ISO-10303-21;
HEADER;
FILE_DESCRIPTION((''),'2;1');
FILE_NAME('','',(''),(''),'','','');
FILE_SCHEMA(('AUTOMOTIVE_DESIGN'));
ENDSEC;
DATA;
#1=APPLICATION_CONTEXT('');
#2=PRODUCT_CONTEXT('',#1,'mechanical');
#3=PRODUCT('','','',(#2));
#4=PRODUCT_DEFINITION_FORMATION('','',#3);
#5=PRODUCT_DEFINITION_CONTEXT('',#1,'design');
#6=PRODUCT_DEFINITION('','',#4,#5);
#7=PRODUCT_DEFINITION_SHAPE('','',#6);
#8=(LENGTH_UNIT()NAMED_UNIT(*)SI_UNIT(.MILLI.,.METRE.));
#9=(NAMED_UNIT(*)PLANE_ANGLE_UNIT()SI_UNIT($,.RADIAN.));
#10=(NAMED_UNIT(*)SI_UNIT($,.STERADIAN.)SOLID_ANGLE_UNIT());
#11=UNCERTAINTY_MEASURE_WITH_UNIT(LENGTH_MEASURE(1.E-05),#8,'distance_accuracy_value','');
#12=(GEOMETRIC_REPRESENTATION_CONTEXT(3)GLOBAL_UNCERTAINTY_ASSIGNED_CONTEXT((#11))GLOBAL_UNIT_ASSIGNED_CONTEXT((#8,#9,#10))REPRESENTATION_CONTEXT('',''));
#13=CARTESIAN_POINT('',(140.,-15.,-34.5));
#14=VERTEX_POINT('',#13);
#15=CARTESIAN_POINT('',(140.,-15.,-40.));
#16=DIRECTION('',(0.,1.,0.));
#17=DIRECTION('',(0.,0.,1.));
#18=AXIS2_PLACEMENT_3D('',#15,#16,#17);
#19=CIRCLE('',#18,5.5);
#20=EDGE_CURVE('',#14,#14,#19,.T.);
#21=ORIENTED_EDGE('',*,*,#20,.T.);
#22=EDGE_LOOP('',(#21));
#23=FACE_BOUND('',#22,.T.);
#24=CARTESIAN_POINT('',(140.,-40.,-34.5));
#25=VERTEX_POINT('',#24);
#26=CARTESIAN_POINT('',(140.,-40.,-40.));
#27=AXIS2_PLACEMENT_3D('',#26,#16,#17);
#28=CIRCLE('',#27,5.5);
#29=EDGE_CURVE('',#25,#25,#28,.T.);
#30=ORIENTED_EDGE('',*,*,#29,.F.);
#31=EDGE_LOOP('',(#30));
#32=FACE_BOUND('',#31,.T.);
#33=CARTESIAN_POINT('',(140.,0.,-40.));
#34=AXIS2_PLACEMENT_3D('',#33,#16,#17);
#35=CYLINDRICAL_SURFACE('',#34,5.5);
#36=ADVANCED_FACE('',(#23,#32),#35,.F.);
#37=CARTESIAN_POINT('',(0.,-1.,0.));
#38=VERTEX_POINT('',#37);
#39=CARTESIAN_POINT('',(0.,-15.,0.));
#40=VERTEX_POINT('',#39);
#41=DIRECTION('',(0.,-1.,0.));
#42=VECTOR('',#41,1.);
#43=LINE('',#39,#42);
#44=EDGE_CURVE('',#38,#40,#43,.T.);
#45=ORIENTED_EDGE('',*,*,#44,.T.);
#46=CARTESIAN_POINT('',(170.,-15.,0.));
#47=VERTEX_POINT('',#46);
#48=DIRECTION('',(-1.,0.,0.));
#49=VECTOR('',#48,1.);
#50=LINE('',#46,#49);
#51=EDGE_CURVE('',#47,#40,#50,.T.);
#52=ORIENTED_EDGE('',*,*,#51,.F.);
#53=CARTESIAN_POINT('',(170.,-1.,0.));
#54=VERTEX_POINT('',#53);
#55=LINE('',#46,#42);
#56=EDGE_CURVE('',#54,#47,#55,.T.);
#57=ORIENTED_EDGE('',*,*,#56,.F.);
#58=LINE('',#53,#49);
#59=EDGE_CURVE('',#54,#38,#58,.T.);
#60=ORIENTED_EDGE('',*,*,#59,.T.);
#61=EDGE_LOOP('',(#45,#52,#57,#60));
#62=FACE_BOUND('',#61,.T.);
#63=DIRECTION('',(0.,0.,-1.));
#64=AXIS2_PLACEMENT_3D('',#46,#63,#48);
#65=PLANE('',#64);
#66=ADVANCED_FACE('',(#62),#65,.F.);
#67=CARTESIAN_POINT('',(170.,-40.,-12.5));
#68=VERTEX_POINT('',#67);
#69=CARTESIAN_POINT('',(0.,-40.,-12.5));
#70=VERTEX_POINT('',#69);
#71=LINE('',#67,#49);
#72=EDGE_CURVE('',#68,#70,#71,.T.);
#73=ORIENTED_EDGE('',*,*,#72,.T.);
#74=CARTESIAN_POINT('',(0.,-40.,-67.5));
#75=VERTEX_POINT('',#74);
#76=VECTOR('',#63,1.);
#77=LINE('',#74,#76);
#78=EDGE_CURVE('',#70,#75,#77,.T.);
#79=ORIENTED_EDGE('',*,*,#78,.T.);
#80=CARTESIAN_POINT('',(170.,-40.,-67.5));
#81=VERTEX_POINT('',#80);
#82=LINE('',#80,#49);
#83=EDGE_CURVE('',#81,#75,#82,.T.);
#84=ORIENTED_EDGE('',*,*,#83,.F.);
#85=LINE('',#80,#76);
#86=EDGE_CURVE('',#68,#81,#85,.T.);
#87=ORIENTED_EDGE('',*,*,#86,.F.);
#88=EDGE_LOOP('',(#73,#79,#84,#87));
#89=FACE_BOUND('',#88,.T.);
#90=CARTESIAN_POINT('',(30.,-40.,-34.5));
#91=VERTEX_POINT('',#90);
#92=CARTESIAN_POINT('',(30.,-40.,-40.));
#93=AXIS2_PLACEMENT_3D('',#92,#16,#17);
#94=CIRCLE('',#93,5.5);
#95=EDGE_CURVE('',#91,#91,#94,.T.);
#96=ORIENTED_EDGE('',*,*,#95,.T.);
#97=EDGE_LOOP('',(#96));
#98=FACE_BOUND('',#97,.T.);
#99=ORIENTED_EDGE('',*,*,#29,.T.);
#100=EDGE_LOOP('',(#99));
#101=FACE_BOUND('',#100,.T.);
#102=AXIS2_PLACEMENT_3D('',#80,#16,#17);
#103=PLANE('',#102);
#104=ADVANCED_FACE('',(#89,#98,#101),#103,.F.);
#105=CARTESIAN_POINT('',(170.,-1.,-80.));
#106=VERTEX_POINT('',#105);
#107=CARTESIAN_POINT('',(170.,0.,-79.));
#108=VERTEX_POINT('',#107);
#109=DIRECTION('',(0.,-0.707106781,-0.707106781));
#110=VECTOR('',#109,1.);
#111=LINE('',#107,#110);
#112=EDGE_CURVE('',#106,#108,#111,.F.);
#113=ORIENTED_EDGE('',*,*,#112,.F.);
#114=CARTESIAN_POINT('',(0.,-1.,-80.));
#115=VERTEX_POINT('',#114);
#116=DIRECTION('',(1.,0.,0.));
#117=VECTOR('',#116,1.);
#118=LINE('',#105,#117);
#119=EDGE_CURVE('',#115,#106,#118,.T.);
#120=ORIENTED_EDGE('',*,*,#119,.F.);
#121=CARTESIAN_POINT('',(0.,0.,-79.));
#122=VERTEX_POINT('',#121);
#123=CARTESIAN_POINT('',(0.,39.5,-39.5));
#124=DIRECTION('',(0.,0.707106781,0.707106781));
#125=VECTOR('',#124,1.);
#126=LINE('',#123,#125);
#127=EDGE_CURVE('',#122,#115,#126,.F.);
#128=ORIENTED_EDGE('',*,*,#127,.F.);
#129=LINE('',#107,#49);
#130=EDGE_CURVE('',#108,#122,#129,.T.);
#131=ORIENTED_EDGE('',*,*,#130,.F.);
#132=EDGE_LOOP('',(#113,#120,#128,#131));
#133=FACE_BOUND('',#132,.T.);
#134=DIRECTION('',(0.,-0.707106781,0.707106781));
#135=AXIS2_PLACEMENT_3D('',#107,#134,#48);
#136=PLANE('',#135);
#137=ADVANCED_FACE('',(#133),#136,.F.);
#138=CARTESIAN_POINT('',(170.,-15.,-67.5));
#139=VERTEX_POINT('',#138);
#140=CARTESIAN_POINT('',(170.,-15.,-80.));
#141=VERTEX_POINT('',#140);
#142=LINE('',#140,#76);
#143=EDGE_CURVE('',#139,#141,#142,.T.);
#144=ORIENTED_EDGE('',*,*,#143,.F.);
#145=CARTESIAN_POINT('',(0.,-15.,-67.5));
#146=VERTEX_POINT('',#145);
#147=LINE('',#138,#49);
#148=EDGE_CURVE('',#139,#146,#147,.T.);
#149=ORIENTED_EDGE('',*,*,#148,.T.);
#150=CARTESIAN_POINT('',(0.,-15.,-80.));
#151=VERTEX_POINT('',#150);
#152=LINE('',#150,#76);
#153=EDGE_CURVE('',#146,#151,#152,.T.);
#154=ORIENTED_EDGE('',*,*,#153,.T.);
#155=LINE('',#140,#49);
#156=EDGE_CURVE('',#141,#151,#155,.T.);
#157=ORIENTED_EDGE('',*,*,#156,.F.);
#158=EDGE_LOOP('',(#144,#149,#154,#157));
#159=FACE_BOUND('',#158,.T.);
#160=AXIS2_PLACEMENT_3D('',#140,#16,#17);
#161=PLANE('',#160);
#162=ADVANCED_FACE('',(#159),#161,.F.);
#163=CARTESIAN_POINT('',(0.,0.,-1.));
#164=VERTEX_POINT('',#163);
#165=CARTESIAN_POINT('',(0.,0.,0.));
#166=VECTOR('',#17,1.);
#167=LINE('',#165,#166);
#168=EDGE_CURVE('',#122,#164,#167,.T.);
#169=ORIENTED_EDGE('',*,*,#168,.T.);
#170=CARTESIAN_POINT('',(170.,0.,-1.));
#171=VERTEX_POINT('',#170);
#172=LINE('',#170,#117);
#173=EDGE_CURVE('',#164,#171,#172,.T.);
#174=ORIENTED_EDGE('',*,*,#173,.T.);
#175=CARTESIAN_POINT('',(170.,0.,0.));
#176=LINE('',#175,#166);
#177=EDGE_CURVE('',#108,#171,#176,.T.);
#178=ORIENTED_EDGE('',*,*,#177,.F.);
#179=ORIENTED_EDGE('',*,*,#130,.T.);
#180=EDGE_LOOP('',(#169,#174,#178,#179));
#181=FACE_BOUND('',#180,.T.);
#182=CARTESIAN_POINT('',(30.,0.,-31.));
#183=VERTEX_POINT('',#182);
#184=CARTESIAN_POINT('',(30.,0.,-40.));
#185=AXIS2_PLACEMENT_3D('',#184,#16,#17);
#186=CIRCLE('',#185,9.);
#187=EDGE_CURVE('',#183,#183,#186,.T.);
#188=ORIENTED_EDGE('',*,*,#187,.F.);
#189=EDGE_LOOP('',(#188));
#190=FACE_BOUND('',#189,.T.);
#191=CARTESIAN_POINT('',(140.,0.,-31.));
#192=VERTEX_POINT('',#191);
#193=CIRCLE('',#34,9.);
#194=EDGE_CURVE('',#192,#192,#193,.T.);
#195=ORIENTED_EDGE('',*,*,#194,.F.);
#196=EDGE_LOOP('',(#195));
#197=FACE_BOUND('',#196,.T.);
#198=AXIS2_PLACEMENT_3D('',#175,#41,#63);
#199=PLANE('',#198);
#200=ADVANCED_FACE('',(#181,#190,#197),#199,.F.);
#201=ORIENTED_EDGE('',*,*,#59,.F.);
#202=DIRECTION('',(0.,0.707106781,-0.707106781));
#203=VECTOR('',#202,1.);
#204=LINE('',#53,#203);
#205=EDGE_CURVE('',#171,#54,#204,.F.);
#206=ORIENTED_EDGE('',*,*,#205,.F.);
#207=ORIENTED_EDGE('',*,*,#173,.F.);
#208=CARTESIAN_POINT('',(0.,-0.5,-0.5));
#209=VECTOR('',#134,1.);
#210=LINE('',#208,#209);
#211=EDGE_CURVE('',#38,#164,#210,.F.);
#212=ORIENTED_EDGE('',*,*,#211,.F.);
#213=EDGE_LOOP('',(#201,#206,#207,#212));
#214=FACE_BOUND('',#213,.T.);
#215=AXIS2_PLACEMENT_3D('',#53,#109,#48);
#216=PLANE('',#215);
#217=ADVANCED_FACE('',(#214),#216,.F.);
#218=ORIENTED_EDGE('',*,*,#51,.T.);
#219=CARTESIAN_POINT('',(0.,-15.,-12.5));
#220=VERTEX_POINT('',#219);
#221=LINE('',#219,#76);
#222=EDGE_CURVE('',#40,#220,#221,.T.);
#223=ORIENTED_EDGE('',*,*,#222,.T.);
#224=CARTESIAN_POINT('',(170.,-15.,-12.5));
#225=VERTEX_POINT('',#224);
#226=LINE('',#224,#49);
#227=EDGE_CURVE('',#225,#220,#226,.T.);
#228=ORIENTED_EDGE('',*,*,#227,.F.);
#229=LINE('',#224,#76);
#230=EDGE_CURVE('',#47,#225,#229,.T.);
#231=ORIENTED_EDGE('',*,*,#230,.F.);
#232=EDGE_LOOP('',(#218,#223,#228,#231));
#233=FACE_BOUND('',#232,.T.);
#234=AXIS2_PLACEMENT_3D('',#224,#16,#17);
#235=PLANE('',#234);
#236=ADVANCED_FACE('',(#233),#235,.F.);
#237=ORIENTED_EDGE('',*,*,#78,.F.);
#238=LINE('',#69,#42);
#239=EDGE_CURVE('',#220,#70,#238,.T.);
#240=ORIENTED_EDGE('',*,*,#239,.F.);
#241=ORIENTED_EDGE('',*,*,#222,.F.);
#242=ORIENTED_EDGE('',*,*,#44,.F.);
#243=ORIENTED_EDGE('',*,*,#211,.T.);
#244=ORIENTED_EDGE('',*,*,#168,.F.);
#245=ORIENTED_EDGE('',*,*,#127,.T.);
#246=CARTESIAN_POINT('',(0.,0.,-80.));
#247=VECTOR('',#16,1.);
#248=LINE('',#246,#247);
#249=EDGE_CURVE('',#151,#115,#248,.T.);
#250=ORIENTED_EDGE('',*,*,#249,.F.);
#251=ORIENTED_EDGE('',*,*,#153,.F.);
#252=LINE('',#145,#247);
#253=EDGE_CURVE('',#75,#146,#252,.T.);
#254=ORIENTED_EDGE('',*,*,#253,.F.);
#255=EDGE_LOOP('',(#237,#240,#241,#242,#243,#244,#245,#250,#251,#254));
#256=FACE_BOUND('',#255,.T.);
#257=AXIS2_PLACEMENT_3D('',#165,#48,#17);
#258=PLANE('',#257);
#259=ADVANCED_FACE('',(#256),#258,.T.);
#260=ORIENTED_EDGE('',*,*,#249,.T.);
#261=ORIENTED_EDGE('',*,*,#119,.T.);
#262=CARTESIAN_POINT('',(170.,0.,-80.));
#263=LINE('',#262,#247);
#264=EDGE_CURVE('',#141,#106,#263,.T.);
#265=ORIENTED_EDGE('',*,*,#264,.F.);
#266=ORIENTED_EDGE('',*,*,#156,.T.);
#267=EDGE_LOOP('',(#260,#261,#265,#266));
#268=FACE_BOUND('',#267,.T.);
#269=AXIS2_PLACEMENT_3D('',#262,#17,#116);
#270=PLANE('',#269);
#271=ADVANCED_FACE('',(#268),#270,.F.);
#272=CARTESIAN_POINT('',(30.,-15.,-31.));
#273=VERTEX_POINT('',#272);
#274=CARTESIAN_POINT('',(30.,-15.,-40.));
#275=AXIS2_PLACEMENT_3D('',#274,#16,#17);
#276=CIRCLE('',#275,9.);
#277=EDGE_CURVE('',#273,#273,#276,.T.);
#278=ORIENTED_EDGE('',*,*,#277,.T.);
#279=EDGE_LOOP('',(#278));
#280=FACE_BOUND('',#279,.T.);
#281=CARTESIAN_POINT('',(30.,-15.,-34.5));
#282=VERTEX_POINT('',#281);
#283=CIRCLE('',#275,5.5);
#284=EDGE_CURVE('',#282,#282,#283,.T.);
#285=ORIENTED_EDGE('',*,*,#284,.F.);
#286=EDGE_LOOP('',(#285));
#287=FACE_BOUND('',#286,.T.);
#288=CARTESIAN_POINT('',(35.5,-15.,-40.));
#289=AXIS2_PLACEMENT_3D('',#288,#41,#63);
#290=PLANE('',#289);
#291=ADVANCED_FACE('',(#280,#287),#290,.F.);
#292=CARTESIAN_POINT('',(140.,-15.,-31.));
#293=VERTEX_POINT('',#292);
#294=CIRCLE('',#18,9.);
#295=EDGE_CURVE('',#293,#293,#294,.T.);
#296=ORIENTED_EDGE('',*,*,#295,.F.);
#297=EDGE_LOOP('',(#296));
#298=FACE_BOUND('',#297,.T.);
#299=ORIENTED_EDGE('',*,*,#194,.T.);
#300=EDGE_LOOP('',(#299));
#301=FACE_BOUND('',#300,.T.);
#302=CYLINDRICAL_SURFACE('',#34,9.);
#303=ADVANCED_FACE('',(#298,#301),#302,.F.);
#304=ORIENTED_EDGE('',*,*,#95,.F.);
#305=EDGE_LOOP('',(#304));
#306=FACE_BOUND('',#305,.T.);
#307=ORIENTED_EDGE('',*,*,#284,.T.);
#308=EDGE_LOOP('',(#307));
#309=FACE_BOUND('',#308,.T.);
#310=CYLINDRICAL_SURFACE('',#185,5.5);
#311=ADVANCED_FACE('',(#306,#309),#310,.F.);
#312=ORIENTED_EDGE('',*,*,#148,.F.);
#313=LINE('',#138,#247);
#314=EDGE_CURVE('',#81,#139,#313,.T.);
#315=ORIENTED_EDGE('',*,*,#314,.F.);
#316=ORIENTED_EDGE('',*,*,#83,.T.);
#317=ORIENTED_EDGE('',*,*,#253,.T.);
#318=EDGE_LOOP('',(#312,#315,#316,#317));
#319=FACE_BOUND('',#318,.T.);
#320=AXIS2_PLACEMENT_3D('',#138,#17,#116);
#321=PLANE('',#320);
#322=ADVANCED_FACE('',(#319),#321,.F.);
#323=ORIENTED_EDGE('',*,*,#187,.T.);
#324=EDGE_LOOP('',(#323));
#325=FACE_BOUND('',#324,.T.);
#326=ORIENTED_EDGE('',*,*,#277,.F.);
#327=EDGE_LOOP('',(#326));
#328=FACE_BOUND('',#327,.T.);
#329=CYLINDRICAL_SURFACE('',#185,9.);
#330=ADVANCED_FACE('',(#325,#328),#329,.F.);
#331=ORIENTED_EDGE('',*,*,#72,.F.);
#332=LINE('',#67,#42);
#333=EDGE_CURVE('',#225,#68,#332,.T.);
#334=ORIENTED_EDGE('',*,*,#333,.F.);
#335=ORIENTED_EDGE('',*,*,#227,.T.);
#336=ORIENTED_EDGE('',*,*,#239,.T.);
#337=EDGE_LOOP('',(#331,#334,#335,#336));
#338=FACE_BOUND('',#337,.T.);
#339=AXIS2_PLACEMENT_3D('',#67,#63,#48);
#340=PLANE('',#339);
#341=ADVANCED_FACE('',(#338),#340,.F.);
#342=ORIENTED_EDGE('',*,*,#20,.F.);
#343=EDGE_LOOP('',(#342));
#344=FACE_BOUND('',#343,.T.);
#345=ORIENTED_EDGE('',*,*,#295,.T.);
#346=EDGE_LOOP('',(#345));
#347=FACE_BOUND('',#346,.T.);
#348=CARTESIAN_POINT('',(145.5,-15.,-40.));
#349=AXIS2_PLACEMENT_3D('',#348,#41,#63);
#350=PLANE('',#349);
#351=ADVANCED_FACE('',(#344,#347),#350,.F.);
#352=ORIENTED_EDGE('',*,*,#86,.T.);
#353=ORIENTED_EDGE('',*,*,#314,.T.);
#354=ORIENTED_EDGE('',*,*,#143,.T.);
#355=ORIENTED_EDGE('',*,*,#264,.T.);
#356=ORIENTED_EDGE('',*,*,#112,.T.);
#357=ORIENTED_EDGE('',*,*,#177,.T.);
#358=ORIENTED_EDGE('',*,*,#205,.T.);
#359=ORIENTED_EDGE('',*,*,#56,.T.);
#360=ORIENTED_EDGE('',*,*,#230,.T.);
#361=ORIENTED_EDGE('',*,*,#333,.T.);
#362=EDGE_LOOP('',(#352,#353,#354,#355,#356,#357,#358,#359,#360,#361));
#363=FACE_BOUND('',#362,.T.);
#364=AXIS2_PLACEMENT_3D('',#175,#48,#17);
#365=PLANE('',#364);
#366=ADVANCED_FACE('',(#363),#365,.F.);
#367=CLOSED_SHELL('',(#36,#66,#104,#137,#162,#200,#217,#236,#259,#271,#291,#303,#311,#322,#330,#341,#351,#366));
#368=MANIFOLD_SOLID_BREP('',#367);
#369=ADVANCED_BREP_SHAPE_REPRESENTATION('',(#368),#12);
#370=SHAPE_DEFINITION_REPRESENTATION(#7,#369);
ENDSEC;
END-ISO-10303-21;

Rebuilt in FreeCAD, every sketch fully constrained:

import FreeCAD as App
import Part
import Sketcher

V = App.Vector


def edges_at(feature, points):
    """Names of the edges that pass closest to the given points."""
    edges = feature.Shape.Edges
    near = lambda p: min(range(len(edges)), key=lambda i: edges[i].distToShape(Part.Vertex(*p))[0])
    return sorted({f"Edge{near(p) + 1}" for p in points})

doc = App.newDocument("Part")
body = doc.addObject("PartDesign::Body", "Body")

# Sketch on YZ plane
sketch1 = body.newObject("Sketcher::SketchObject", "Sketch")
sketch1.AttachmentSupport = (doc.getObject("YZ_Plane"), [""])
sketch1.MapMode = "FlatFace"
sketch1.addGeometry([
    Part.LineSegment(V(0, -80, 0), V(0, 0, 0)),  # 0
    Part.LineSegment(V(0, 0, 0), V(-15, 0, 0)),  # 1
    Part.LineSegment(V(-15, 0, 0), V(-15, -12, 0)),  # 2
    Part.LineSegment(V(-15, -12, 0), V(-40, -12, 0)),  # 3
    Part.LineSegment(V(-40, -12, 0), V(-40, -68, 0)),  # 4
    Part.LineSegment(V(-40, -68, 0), V(-15, -68, 0)),  # 5
    Part.LineSegment(V(-15, -68, 0), V(-15, -80, 0)),  # 6
    Part.LineSegment(V(-15, -80, 0), V(0, -80, 0)),  # 7
], False)
sketch1.addConstraint([
    Sketcher.Constraint("Coincident", 0, 2, 1, 1),
    Sketcher.Constraint("Coincident", 1, 2, 2, 1),
    Sketcher.Constraint("Coincident", 2, 2, 3, 1),
    Sketcher.Constraint("Coincident", 3, 2, 4, 1),
    Sketcher.Constraint("Coincident", 4, 2, 5, 1),
    Sketcher.Constraint("Coincident", 5, 2, 6, 1),
    Sketcher.Constraint("Coincident", 6, 2, 7, 1),
    Sketcher.Constraint("Coincident", 7, 2, 0, 1),
    Sketcher.Constraint("Vertical", 0),
    Sketcher.Constraint("Horizontal", 1),
    Sketcher.Constraint("Vertical", 2),
    Sketcher.Constraint("Horizontal", 3),
    Sketcher.Constraint("Vertical", 4),
    Sketcher.Constraint("Horizontal", 5),
    Sketcher.Constraint("Vertical", 6),
    Sketcher.Constraint("Horizontal", 7),
    Sketcher.Constraint("Coincident", 0, 2, -1, 1),
    Sketcher.Constraint("Vertical", 2, 2, 5, 2),
    Sketcher.Constraint("Equal", 2, 6),
    Sketcher.Constraint("DistanceX", 1, 2, 1, 1, 15.0),
    Sketcher.Constraint("DistanceX", 3, 2, 3, 1, 25.0),
    Sketcher.Constraint("DistanceY", 0, 1, 0, 2, 80.0),
    Sketcher.Constraint("DistanceY", 4, 2, 4, 1, 55.0),
])
pad1 = body.newObject("PartDesign::Pad", "Pad")
pad1.Profile = sketch1
pad1.Length = 170

# Sketch on XZ plane
sketch2 = body.newObject("Sketcher::SketchObject", "Sketch001")
sketch2.AttachmentSupport = (doc.getObject("XZ_Plane"), [""])
sketch2.MapMode = "FlatFace"
sketch2.addGeometry([
    Part.Circle(V(30, -40, 0), V(0, 0, 1), 6),
    Part.Circle(V(140, -40, 0), V(0, 0, 1), 6),
], False)
sketch2.addConstraint([
    Sketcher.Constraint("Equal", 0, 1),
    Sketcher.Constraint("Horizontal", 0, 3, 1, 3),
    Sketcher.Constraint("Diameter", 0, 11.0),
    Sketcher.Constraint("DistanceX", -1, 1, 0, 3, 30.0),
    Sketcher.Constraint("DistanceY", 0, 3, -1, 1, 40.0),
    Sketcher.Constraint("DistanceX", -1, 1, 1, 3, 140.0),
])
doc.recompute()
hole = body.newObject("PartDesign::Hole", "Hole")
hole.Profile = sketch2
hole.ThreadType = "None"
hole.Diameter = 11
hole.DepthType = "ThroughAll"
hole.HoleCutType = "Counterbore"
hole.HoleCutDiameter = 18
hole.HoleCutDepth = 15
hole.Reversed = True
doc.recompute()

chamfer = body.newObject("PartDesign::Chamfer", "Chamfer")
chamfer.Base = (hole, edges_at(hole, [(85, 0, 0), (85, 0, -80)]))
chamfer.Size = 1

doc.recompute()
